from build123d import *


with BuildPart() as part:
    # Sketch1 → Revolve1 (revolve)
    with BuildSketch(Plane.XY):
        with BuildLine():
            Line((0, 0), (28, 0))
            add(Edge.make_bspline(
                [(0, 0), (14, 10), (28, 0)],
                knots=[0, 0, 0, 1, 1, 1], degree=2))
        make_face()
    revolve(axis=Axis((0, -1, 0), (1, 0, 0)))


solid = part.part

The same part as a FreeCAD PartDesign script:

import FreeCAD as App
import Part
import Sketcher

V = App.Vector

doc = App.newDocument("Part")
params = doc.addObject("Spreadsheet::Sheet", "Params")
for row, (alias, value) in enumerate([
    ("sketch1_width", "28 mm"),
    ("revolution_angle", "360 deg"),
], start=1):
    params.set(f"A{row}", alias)
    params.set(f"B{row}", "=" + value)
    params.setAlias(f"B{row}", alias)

body = doc.addObject("PartDesign::Body", "Body")

# Sketch on XY plane
sketch1 = body.newObject("Sketcher::SketchObject", "Sketch")
sketch1.AttachmentSupport = (doc.getObject("XY_Plane"), [""])
sketch1.MapMode = "FlatFace"
sketch1.addGeometry(Part.LineSegment(V(0, 0, 0), V(28, 0, 0)), False)
sketch1.addGeometry(Part.BSplineCurve([V(0, 0, 0), V(14, 10, 0), V(28, 0, 0)], [3, 3], [0, 1], False, 2, [1, 1, 1], False), False)
sketch1.addGeometry(Part.LineSegment(V(0, -1, 0), V(28, -1, 0)), True)  # axis
sketch1.addConstraint(Sketcher.Constraint("Block", 1))
sketch1.addConstraint(Sketcher.Constraint("Coincident", 0, 1, 1, 1))
sketch1.addConstraint(Sketcher.Constraint("Coincident", 1, 2, 0, 2))
sketch1.addConstraint(Sketcher.Constraint("Horizontal", 2))
sketch1.addConstraint(Sketcher.Constraint("PointOnObject", 2, 1, -2))
sketch1.addConstraint(Sketcher.Constraint("DistanceX", 2, 1, 2, 2, 28.0))
sketch1.addConstraint(Sketcher.Constraint("DistanceY", 2, 1, -1, 1, 1.0))
sketch1.setExpression("Constraints[5]", "Params.sketch1_width")
revolution = body.newObject("PartDesign::Revolution", "Revolution")
revolution.Profile = sketch1
revolution.ReferenceAxis = (sketch1, ["Axis0"])
revolution.setExpression("Angle", "Params.revolution_angle")

doc.recompute()
